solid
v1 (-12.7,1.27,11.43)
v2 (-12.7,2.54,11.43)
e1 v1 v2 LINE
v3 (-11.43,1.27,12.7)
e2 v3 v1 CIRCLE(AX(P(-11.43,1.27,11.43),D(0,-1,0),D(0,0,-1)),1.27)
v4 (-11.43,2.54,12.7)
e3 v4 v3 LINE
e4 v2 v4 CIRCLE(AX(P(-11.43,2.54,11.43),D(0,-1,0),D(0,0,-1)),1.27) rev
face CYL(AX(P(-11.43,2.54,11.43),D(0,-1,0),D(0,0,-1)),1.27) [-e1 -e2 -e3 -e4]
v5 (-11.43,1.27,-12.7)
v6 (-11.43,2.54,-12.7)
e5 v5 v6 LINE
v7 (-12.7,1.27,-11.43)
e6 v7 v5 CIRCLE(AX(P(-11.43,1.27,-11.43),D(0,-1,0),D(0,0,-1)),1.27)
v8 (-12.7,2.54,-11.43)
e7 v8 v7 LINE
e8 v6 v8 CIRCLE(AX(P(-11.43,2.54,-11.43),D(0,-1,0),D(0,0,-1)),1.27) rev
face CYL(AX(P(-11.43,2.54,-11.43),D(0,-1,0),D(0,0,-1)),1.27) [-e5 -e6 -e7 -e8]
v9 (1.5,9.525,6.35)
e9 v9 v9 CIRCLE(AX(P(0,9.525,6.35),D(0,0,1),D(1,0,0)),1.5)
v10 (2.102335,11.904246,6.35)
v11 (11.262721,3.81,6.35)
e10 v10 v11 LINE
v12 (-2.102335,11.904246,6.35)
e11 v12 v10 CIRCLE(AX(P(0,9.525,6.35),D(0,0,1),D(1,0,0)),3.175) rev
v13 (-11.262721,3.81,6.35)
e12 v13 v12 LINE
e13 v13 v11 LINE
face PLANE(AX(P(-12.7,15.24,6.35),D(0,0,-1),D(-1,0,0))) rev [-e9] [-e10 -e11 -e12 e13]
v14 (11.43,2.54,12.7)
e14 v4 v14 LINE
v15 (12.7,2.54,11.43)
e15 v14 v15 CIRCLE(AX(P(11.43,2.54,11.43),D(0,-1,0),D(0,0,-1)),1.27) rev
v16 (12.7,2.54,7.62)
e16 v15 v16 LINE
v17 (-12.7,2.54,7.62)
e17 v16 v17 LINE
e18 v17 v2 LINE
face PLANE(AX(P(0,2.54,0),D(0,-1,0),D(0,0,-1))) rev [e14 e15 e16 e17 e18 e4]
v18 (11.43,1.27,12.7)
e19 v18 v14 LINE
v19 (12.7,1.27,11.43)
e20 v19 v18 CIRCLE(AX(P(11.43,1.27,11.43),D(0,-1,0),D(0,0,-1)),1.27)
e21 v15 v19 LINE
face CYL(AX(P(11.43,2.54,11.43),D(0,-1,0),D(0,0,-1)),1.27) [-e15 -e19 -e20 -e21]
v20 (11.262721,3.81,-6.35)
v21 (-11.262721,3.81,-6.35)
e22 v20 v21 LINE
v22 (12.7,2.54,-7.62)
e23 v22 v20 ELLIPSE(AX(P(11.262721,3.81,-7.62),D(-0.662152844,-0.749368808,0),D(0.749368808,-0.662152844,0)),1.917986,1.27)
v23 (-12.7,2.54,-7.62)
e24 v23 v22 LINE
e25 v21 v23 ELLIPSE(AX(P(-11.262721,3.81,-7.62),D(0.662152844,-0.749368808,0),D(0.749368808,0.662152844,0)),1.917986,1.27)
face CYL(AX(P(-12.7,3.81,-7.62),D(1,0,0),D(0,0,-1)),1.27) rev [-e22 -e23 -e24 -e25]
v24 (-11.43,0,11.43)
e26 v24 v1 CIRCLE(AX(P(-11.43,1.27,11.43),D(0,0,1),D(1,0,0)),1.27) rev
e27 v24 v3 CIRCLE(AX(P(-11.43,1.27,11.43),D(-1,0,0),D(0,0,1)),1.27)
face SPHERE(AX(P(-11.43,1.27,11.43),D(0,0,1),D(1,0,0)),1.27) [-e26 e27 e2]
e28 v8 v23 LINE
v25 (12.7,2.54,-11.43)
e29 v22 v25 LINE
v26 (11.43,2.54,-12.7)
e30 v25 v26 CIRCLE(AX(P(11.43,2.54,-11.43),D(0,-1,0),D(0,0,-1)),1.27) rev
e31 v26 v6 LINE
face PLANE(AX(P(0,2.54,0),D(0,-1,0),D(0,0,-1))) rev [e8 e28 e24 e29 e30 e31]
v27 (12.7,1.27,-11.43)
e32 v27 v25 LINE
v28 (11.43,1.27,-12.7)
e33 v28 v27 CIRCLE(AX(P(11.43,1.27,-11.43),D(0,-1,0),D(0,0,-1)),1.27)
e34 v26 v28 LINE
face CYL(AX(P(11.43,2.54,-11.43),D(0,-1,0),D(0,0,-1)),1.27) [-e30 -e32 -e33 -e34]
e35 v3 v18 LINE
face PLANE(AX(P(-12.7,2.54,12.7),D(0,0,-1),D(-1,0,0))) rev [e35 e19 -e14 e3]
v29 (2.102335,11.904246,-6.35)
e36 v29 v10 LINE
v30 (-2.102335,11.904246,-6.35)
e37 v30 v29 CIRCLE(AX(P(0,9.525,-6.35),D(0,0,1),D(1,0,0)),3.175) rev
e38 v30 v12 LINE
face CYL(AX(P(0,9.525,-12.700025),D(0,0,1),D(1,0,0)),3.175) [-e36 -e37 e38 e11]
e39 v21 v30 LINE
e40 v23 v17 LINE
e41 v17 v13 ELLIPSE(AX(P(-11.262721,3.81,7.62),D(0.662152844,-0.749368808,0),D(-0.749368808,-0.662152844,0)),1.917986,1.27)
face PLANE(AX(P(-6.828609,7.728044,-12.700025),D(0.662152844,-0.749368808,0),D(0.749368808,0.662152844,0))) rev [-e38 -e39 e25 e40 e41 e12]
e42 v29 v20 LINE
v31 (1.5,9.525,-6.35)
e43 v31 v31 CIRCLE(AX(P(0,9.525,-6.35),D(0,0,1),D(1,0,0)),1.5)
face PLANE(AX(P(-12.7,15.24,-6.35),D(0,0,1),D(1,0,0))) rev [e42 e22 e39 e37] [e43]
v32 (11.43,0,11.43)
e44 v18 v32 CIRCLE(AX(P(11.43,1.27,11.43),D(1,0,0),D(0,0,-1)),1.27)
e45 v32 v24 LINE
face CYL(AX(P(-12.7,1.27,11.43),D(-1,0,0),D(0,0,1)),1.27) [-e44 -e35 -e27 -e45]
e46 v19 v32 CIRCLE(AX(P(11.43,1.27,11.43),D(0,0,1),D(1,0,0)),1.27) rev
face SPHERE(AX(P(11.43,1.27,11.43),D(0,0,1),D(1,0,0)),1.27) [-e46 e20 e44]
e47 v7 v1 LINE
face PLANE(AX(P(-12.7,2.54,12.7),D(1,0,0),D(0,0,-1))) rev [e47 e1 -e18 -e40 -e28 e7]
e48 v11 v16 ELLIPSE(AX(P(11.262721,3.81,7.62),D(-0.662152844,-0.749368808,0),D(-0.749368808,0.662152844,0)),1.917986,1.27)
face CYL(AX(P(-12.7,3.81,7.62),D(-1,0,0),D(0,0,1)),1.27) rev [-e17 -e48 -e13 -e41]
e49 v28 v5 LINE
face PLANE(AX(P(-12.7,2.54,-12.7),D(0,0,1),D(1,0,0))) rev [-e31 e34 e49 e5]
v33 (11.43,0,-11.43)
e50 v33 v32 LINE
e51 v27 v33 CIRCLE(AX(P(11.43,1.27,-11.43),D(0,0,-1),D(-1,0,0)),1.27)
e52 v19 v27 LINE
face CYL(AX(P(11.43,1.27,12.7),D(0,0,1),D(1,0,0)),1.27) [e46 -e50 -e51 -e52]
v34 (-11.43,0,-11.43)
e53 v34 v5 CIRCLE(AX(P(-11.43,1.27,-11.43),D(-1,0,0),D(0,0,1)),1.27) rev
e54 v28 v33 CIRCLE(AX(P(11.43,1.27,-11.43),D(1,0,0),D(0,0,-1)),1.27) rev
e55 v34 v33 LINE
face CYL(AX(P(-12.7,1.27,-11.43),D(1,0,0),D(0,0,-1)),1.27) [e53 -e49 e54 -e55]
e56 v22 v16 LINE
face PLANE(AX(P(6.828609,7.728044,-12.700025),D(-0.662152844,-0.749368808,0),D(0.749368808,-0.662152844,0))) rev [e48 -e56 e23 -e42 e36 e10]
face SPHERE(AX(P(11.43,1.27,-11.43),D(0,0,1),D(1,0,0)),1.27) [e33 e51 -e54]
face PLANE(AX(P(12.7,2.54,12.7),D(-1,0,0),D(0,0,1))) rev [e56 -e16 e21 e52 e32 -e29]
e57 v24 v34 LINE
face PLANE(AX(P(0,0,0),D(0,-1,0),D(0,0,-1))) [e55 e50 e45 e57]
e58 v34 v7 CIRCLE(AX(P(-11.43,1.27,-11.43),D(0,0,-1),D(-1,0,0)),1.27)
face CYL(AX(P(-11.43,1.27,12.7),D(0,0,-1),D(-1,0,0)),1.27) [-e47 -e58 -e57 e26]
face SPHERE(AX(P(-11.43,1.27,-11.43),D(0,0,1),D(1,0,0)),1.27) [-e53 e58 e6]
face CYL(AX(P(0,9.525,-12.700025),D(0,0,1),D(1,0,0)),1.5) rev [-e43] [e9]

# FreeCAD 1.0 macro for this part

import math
import FreeCAD as App
import Part
import Sketcher
from FreeCAD import Vector
Q = App.Units.Quantity


def edges_at(feature, points):
    """Names of the edges that pass closest to the given points."""
    edges = feature.Shape.Edges
    near = lambda p: min(range(len(edges)), key=lambda i: edges[i].distToShape(Part.Vertex(*p))[0])
    return sorted({f"Edge{near(p) + 1}" for p in points})


def add_polygon(sketch, points):
    """Adds a closed chain of lines whose ends are joined by coincident constraints."""
    first, n = sketch.GeometryCount, len(points)
    for a, b in zip(points, points[1:] + points[:1]):
        sketch.addGeometry(Part.LineSegment(App.Vector(*a, 0), App.Vector(*b, 0)), False)
    for i in range(n):
        sketch.addConstraint(Sketcher.Constraint("Coincident", first + i, 2, first + (i + 1) % n, 1))

doc = App.newDocument("Part")
body = doc.addObject("PartDesign::Body", "Body")

sketch1 = body.newObject("Sketcher::SketchObject", "Sketch")
sketch1.AttachmentSupport = (doc.getObject("XZ_Plane"), [""])
sketch1.MapMode = "FlatFace"
add_polygon(sketch1, [(-13, -13), (-13, 13), (13, 13), (13, -13)])
sketch1.addConstraint([
    Sketcher.Constraint("Vertical", 0),
    Sketcher.Constraint("Horizontal", 1),
    Sketcher.Constraint("Vertical", 2),
    Sketcher.Constraint("Horizontal", 3),
    Sketcher.Constraint("Symmetric", 0, 2, 2, 2, -1, 1),
    Sketcher.Constraint("Equal", 3, 0),
    Sketcher.Constraint("DistanceX", 1, 1, 1, 2, Q("1 in")),
])
pad1 = body.newObject("PartDesign::Pad", "Pad")
pad1.Profile = sketch1
pad1.Length = Q("0.1 in")
pad1.Reversed = True

sketch2 = body.newObject("Sketcher::SketchObject", "Sketch001")
sketch2.AttachmentSupport = (doc.getObject("XZ_Plane"), [""])
sketch2.MapMode = "FlatFace"
sketch2.AttachmentOffset = App.Placement(Vector(0, 0, -0.1 * 25.4), App.Rotation())
add_polygon(sketch2, [(-13, -6), (-13, 6), (13, 6), (13, -6)])
sketch2.addConstraint([
    Sketcher.Constraint("Vertical", 0),
    Sketcher.Constraint("Horizontal", 1),
    Sketcher.Constraint("Vertical", 2),
    Sketcher.Constraint("Horizontal", 3),
    Sketcher.Constraint("Symmetric", 0, 2, 2, 2, -1, 1),
    Sketcher.Constraint("DistanceX", 1, 1, 1, 2, Q("1 in")),
    Sketcher.Constraint("DistanceY", 0, 1, 0, 2, Q("0.5 in")),
])
pad2 = body.newObject("PartDesign::Pad", "Pad001")
pad2.Profile = sketch2
pad2.Length = Q("0.5 in")
pad2.Reversed = True

sketch3 = body.newObject("Sketcher::SketchObject", "Sketch002")
sketch3.AttachmentSupport = (doc.getObject("XY_Plane"), [""])
sketch3.MapMode = "FlatFace"
sketch3.AttachmentOffset = App.Placement(Vector(0, 0, 0.25 * 25.4), App.Rotation())
sketch3.addGeometry([
    Part.LineSegment(Vector(-12.7, 2.5, 0), Vector(-2.1, 11.9, 0)),
    Part.ArcOfCircle(Part.Circle(Vector(0, 9.5, 0), Vector(0, 0, 1), 3.2), math.radians(49), math.radians(131)),
    Part.LineSegment(Vector(2.1, 11.9, 0), Vector(12.7, 2.5, 0)),
    Part.LineSegment(Vector(12.7, 2.5, 0), Vector(12.7, 15.2, 0)),
    Part.LineSegment(Vector(12.7, 15.2, 0), Vector(-12.7, 15.2, 0)),
    Part.LineSegment(Vector(-12.7, 15.2, 0), Vector(-12.7, 2.5, 0)),
    Part.Circle(Vector(0, 9.5, 0), Vector(0, 0, 1), 1.5),
], False)
sketch3.addConstraint([
    Sketcher.Constraint("Tangent", 0, 2, 1, 2),
    Sketcher.Constraint("Tangent", 1, 1, 2, 1),
    Sketcher.Constraint("Coincident", 2, 2, 3, 1),
    Sketcher.Constraint("Coincident", 3, 2, 4, 1),
    Sketcher.Constraint("Coincident", 4, 2, 5, 1),
    Sketcher.Constraint("Coincident", 5, 2, 0, 1),
    Sketcher.Constraint("Vertical", 3),
    Sketcher.Constraint("Horizontal", 4),
    Sketcher.Constraint("Vertical", 5),
    Sketcher.Constraint("Coincident", 6, 3, 1, 3),
    Sketcher.Constraint("Symmetric", 0, 2, 1, 1, -2),
    Sketcher.Constraint("Horizontal", 2, 2, 5, 2),
    Sketcher.Constraint("DistanceX", 4, 2, 4, 1, Q("1 in")),
    Sketcher.Constraint("DistanceY", 3, 1, 3, 2, Q("0.5 in")),
    Sketcher.Constraint("Radius", 1, Q("0.125 in")),
    Sketcher.Constraint("DistanceY", -1, 1, 2, 2, Q("0.1 in")),
    Sketcher.Constraint("Diameter", 6, Q("3 mm")),
    Sketcher.Constraint("DistanceY", -1, 1, 1, 3, Q("0.375 in")),
])
pocket1 = body.newObject("PartDesign::Pocket", "Pocket")
pocket1.Profile = sketch3
pocket1.Type = "ThroughAll"
doc.recompute()

fillet = body.newObject("PartDesign::Fillet", "Fillet")
fillet.Base = (pocket1, edges_at(pocket1, [
    (0, 0, -12.7),
    (-12.7, 0, 0),
    (0, 0, 12.7),
    (12.7, 0, 0),
    (-12.7, 1.27, 12.7),
    (12.7, 1.27, 12.7),
    (-12.7, 1.27, -12.7),
    (12.7, 1.27, -12.7),
    (0, 2.54, -6.35),
    (0, 2.54, 6.35),
]))
fillet.Radius = Q("0.05 in")

doc.recompute()
